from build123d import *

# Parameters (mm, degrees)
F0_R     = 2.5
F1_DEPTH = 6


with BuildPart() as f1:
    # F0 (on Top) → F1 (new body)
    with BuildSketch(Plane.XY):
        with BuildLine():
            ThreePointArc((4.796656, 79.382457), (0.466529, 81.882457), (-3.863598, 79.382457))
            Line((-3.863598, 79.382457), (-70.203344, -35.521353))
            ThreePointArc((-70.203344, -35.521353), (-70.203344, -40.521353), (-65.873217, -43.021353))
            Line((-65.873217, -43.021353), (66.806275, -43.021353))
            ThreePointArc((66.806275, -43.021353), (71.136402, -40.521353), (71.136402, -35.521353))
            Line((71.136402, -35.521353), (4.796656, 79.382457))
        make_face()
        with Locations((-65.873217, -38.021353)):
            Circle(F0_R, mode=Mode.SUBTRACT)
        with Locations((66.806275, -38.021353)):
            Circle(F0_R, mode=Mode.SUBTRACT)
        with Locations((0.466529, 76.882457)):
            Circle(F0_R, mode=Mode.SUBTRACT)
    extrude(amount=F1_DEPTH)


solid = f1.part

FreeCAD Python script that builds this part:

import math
import FreeCAD as App
import Part
import Sketcher
Q = App.Units.Quantity

doc = App.newDocument("Part")
body = doc.addObject("PartDesign::Body", "Body")

# Sketch on XY plane
sketch1 = body.newObject("Sketcher::SketchObject", "Sketch")
sketch1.AttachmentSupport = (doc.getObject("XY_Plane"), [""])
sketch1.MapMode = "FlatFace"
sketch1.addGeometry(Part.ArcOfCircle(Part.Circle(App.Vector(0.5, 76.9, 0), App.Vector(0, 0, 1), 5), math.radians(30), math.radians(150)), False)
sketch1.addGeometry(Part.LineSegment(App.Vector(-3.9, 79.4, 0), App.Vector(-70.2, -35.5, 0)), False)
sketch1.addGeometry(Part.ArcOfCircle(Part.Circle(App.Vector(-65.9, -38, 0), App.Vector(0, 0, 1), 5), math.radians(150), math.radians(270)), False)
sketch1.addGeometry(Part.LineSegment(App.Vector(-65.9, -43, 0), App.Vector(66.8, -43, 0)), False)
sketch1.addGeometry(Part.ArcOfCircle(Part.Circle(App.Vector(66.8, -38, 0), App.Vector(0, 0, 1), 5), math.radians(-90), math.radians(30)), False)
sketch1.addGeometry(Part.LineSegment(App.Vector(71.1, -35.5, 0), App.Vector(4.8, 79.4, 0)), False)
sketch1.addGeometry(Part.Circle(App.Vector(-65.9, -38, 0), App.Vector(0, 0, 1), 2.5), False)
sketch1.addGeometry(Part.Circle(App.Vector(66.8, -38, 0), App.Vector(0, 0, 1), 2.5), False)
sketch1.addGeometry(Part.Circle(App.Vector(0.5, 76.9, 0), App.Vector(0, 0, 1), 2.5), False)
sketch1.addConstraint(Sketcher.Constraint("Tangent", 0, 2, 1, 1))
sketch1.addConstraint(Sketcher.Constraint("Tangent", 1, 2, 2, 1))
sketch1.addConstraint(Sketcher.Constraint("Tangent", 2, 2, 3, 1))
sketch1.addConstraint(Sketcher.Constraint("Tangent", 3, 2, 4, 1))
sketch1.addConstraint(Sketcher.Constraint("Tangent", 4, 2, 5, 1))
sketch1.addConstraint(Sketcher.Constraint("Tangent", 5, 2, 0, 1))
sketch1.addConstraint(Sketcher.Constraint("Horizontal", 3))
sketch1.addConstraint(Sketcher.Constraint("Coincident", 6, 3, 2, 3))
sketch1.addConstraint(Sketcher.Constraint("Coincident", 7, 3, 4, 3))
sketch1.addConstraint(Sketcher.Constraint("Coincident", 8, 3, 0, 3))
sketch1.addConstraint(Sketcher.Constraint("Equal", 0, 2))
sketch1.addConstraint(Sketcher.Constraint("Equal", 2, 4))
sketch1.addConstraint(Sketcher.Constraint("Equal", 6, 7))
sketch1.addConstraint(Sketcher.Constraint("Equal", 7, 8))
sketch1.addConstraint(Sketcher.Constraint("Horizontal", 1, 2, 4, 2))
sketch1.addConstraint(Sketcher.Constraint("Diameter", 6, Q("5 mm")))
sketch1.addConstraint(Sketcher.Constraint("Radius", 0, Q("5 mm")))
sketch1.addConstraint(Sketcher.Constraint("Angle", 1, Q("-120 deg")))
sketch1.addConstraint(Sketcher.Constraint("DistanceX", 3, 1, 3, 2, Q("132.679492 mm")))
sketch1.addConstraint(Sketcher.Constraint("DistanceX", -1, 1, 4, 2, Q("71.136402 mm")))
sketch1.addConstraint(Sketcher.Constraint("DistanceY", -1, 1, 0, 3, Q("76.882457 mm")))
pad1 = body.newObject("PartDesign::Pad", "Pad")
pad1.Profile = sketch1
pad1.Length = 6

doc.recompute()
